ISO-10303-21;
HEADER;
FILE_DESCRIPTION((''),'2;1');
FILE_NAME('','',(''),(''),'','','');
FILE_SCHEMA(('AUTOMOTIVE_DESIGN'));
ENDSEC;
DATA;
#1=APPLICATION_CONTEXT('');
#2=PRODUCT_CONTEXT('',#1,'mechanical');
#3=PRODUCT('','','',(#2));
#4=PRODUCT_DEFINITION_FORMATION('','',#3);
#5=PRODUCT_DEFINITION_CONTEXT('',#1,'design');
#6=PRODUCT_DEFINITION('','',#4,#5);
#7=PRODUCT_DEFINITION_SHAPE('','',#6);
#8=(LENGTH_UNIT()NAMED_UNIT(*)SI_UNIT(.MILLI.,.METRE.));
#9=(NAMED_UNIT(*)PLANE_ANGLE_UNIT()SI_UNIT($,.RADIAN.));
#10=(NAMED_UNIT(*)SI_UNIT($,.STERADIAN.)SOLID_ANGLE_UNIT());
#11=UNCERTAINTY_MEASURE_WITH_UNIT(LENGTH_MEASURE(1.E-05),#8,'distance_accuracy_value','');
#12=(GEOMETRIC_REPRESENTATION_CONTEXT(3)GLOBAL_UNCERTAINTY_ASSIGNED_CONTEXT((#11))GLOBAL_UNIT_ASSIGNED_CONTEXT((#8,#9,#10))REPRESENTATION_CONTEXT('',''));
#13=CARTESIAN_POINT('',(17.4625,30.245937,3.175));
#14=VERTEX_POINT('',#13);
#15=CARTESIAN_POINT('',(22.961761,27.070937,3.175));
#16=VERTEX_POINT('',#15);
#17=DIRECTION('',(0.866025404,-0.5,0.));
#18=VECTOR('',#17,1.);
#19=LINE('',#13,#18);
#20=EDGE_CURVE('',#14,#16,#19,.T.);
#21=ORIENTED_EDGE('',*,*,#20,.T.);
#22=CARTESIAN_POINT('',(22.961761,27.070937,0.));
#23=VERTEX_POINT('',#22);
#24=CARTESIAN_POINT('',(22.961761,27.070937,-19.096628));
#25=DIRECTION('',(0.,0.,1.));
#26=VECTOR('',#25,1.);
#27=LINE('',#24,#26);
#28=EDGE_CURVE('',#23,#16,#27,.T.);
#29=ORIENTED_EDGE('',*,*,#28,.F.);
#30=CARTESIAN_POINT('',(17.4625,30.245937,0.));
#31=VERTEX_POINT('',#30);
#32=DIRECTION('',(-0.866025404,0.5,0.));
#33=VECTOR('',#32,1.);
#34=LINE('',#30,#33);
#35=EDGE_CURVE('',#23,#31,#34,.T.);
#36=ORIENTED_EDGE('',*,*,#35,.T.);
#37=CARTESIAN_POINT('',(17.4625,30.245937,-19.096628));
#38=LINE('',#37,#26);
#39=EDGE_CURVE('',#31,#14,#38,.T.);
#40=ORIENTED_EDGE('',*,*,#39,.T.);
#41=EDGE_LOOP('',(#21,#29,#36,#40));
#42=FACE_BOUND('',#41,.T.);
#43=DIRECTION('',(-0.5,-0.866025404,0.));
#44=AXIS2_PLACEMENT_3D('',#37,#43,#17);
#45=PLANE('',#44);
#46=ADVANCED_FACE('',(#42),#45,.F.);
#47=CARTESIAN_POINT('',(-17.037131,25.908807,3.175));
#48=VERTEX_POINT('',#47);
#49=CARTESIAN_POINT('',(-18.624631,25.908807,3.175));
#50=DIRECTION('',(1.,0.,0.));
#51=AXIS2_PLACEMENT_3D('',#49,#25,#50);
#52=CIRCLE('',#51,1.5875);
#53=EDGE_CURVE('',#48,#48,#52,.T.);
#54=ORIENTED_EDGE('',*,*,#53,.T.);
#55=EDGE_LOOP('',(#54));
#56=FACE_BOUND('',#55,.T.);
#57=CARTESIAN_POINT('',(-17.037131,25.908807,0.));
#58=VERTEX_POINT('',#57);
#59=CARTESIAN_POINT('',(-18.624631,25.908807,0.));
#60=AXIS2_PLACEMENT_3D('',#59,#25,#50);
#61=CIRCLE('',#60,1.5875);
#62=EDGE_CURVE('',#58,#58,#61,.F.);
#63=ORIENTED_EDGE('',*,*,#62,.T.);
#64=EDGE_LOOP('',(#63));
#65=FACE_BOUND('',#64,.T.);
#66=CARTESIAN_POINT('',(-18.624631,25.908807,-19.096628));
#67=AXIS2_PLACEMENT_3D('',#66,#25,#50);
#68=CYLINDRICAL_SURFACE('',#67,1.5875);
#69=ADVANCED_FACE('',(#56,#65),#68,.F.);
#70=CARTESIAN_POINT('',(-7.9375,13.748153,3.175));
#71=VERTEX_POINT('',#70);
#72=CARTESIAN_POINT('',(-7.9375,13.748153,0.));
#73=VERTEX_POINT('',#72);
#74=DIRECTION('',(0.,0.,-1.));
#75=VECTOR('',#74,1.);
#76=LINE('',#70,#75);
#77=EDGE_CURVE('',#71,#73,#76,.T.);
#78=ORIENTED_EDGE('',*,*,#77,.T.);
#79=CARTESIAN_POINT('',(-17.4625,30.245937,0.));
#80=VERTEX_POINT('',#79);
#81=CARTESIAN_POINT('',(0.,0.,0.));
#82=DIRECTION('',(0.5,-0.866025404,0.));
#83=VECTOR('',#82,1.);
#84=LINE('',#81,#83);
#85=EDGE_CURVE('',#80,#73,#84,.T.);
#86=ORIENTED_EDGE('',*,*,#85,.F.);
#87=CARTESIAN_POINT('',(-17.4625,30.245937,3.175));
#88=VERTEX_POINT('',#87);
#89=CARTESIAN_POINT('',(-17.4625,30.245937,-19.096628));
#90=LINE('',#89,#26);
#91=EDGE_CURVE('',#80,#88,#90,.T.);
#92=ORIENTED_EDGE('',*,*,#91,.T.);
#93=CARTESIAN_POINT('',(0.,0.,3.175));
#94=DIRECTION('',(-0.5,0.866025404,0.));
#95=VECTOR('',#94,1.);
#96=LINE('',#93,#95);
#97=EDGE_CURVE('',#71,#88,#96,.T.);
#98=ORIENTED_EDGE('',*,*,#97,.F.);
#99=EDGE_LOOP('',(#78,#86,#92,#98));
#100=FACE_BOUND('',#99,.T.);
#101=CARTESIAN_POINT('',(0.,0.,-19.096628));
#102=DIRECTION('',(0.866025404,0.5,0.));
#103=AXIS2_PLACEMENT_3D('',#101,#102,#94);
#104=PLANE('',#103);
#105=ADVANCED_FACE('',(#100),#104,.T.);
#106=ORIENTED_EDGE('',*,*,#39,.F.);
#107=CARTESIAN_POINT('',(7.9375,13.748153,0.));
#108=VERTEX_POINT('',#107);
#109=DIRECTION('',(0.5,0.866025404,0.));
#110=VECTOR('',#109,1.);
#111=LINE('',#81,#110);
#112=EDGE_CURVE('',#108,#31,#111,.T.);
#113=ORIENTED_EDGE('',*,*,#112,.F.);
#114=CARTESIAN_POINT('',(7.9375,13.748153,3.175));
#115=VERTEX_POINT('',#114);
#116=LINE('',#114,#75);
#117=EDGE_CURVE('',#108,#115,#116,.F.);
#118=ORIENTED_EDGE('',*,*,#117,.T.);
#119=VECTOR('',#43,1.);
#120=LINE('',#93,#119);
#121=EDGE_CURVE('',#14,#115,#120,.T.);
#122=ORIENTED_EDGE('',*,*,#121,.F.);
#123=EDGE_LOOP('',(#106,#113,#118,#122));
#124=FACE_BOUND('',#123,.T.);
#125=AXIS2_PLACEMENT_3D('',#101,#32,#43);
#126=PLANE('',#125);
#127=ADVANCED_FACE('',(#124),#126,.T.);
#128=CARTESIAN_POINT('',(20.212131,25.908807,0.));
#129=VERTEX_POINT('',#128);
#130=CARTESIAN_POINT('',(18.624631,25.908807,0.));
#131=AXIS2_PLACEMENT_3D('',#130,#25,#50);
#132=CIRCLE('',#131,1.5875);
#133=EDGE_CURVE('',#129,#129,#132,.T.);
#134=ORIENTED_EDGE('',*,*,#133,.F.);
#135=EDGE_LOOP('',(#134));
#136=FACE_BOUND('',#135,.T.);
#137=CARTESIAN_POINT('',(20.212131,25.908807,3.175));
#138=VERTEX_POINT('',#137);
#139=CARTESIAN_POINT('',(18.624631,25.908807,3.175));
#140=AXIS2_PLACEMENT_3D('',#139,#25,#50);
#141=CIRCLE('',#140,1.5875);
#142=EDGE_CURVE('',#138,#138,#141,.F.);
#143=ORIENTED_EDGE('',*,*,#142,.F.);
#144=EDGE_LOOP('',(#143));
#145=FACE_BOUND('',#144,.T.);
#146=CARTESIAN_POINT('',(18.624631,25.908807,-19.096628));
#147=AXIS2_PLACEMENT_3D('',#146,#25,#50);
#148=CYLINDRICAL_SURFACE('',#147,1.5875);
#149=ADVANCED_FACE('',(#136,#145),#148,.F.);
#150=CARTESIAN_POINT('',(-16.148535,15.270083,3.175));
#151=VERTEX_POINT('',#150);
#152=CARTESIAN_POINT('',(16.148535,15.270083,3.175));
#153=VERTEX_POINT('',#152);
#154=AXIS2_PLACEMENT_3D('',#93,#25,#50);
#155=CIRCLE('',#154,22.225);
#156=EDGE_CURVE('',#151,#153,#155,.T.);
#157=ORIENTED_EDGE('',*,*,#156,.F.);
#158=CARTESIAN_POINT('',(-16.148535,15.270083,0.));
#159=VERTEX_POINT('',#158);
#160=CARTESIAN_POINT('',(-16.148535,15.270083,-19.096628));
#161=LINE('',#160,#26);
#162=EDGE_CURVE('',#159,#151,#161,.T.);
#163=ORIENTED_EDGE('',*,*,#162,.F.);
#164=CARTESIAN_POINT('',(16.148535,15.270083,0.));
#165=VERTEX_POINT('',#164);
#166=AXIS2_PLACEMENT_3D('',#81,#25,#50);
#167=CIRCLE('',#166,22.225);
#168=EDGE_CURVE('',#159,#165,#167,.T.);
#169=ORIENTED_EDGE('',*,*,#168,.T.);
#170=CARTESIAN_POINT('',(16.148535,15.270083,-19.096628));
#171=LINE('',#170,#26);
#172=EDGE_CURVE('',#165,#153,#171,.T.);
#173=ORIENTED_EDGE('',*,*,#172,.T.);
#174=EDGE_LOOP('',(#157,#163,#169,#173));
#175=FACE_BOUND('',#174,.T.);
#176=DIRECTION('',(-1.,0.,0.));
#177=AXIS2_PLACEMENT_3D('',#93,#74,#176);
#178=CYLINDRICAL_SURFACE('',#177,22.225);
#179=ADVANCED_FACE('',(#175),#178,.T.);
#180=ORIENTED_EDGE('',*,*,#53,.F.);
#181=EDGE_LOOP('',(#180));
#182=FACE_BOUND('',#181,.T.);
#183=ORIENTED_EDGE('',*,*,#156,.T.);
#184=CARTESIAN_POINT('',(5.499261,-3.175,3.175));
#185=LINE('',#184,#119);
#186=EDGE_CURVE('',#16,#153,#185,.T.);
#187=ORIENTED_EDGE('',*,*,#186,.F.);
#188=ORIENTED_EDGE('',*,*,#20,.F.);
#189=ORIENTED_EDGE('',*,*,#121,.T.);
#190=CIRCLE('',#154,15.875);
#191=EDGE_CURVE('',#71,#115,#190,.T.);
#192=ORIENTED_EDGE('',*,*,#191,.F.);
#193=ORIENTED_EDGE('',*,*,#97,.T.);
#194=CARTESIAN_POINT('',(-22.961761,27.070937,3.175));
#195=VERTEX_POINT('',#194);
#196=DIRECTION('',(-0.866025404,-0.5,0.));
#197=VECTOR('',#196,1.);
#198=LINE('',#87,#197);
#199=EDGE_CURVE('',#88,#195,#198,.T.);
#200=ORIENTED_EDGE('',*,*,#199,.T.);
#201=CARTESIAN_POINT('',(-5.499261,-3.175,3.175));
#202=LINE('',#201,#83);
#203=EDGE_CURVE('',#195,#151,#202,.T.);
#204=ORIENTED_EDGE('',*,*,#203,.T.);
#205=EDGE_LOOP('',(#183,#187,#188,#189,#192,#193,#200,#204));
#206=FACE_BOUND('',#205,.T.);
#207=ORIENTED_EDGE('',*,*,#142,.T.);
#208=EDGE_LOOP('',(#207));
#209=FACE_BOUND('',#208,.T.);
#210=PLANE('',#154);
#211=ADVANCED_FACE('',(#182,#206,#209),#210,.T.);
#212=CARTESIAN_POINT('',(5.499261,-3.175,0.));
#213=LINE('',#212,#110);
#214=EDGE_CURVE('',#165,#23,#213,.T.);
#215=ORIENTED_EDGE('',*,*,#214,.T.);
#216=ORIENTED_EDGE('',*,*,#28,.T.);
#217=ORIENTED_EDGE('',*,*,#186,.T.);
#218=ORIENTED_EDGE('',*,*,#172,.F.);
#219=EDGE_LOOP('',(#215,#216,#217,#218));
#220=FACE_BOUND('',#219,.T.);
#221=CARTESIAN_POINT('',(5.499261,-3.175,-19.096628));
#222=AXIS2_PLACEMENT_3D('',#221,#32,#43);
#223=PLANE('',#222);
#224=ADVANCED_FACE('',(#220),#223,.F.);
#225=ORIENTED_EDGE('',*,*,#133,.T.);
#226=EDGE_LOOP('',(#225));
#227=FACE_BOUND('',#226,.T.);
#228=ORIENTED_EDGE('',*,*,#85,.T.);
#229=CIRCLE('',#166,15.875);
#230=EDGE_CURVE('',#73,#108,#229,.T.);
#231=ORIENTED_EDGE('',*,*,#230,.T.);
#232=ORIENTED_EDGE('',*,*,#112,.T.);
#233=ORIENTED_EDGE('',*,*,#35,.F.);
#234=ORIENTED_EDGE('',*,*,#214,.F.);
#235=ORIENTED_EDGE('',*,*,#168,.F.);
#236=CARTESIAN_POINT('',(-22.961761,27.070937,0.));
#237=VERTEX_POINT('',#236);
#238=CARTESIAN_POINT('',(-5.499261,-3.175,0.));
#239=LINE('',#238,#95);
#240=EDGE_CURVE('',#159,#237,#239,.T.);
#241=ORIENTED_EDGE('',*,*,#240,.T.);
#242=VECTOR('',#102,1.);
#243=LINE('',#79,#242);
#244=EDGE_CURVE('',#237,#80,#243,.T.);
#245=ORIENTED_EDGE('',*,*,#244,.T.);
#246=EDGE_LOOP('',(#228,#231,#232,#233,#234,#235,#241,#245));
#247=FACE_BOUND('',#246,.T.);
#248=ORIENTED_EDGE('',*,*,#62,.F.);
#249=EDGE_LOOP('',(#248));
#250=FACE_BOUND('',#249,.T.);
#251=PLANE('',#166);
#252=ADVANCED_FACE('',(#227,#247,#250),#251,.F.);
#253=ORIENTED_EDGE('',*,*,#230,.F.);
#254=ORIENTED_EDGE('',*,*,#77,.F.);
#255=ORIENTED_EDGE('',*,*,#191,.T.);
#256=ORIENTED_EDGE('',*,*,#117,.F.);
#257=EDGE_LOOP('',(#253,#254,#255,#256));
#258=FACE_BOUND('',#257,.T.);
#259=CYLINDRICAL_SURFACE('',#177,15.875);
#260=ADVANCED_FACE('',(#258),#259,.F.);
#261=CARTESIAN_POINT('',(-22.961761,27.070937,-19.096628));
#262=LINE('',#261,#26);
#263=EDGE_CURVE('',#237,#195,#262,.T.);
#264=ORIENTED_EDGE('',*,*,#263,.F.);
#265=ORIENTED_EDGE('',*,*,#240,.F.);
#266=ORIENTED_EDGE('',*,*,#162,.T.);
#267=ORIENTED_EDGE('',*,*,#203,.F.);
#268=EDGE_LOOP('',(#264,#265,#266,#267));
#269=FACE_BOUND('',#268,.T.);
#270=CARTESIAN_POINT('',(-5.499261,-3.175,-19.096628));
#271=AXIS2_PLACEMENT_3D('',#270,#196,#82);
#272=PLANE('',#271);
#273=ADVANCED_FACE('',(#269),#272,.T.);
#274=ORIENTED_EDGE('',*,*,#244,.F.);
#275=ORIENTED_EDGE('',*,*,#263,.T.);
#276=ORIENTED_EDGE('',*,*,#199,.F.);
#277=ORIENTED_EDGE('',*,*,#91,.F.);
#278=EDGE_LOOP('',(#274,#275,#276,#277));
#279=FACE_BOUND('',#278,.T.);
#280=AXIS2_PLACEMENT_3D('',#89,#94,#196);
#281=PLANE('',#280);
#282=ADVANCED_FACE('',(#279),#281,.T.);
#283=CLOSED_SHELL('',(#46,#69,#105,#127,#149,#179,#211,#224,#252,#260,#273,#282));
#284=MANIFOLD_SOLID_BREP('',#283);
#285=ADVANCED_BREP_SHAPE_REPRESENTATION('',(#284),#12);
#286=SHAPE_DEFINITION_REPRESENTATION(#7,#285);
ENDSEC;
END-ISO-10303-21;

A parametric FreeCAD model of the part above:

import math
import FreeCAD as App
import Part
import Sketcher
from FreeCAD import Vector
Q = App.Units.Quantity

doc = App.newDocument("Part")
body = doc.addObject("PartDesign::Body", "Body")

# Sketch on XY plane
sketch1 = doc.addObject("Sketcher::SketchObject", "Sketch")
body.addObject(sketch1)
sketch1.AttachmentSupport = (doc.XY_Plane, [""])
sketch1.MapMode = "FlatFace"
sketch1.addGeometry([
    Part.Circle(Vector(0, 0, 0), Vector(0, 0, 1), 22),
    Part.Circle(Vector(0, 0, 0), Vector(0, 0, 1), 16),
], False)
sketch1.addConstraint([
    Sketcher.Constraint("Coincident", 0, 3, -1, 1),
    Sketcher.Constraint("Coincident", 1, 3, -1, 1),
    Sketcher.Constraint("Diameter", 0, Q("1.75 in")),
    Sketcher.Constraint("Diameter", 1, Q("1.25 in")),
])
pad1 = doc.addObject("PartDesign::Pad", "Pad")
body.addObject(pad1)
pad1.Profile = sketch1
pad1.Length = Q("0.125 in")

# Sketch on XY plane
sketch2 = doc.addObject("Sketcher::SketchObject", "Sketch001")
body.addObject(sketch2)
sketch2.AttachmentSupport = (doc.XY_Plane, [""])
sketch2.MapMode = "FlatFace"
sketch2.AttachmentOffset = App.Placement(Vector(0, 0, 0.125 * 25.4), App.Rotation())
sketch2.addGeometry([
    Part.ArcOfCircle(Part.Circle(Vector(0, 0, 0), Vector(0, 0, 1), 22.2), math.radians(120), math.radians(136.6)),  # 0
    Part.LineSegment(Vector(-11.1, 19.2, 0), Vector(-17.5, 30.2, 0)),  # 1
    Part.LineSegment(Vector(-17.5, 30.2, 0), Vector(-23, 27.1, 0)),  # 2
    Part.LineSegment(Vector(-23, 27.1, 0), Vector(-16.6, 16.1, 0)),  # 3
    Part.LineSegment(Vector(-16.6, 16.1, 0), Vector(-16.1, 15.3, 0)),  # 4
    Part.Circle(Vector(-18.6, 25.9, 0), Vector(0, 0, 1), 1.6),  # 5
    Part.LineSegment(Vector(17.5, 30.2, 0), Vector(11.1, 19.2, 0)),  # 6
    Part.ArcOfCircle(Part.Circle(Vector(0, 0, 0), Vector(0, 0, 1), 22.2), math.radians(43.4), math.radians(60)),  # 7
    Part.LineSegment(Vector(16.1, 15.3, 0), Vector(16.6, 16.1, 0)),  # 8
    Part.LineSegment(Vector(16.6, 16.1, 0), Vector(23, 27.1, 0)),  # 9
    Part.LineSegment(Vector(23, 27.1, 0), Vector(17.5, 30.2, 0)),  # 10
    Part.Circle(Vector(18.6, 25.9, 0), Vector(0, 0, 1), 1.6),  # 11
], False)
sketch2.addConstraint([
    Sketcher.Constraint("Coincident", 0, 1, 1, 1),
    Sketcher.Constraint("Coincident", 1, 2, 2, 1),
    Sketcher.Constraint("Coincident", 2, 2, 3, 1),
    Sketcher.Constraint("Coincident", 3, 2, 4, 1),
    Sketcher.Constraint("Coincident", 4, 2, 0, 2),
    Sketcher.Constraint("Coincident", 6, 2, 7, 2),
    Sketcher.Constraint("Coincident", 7, 1, 8, 1),
    Sketcher.Constraint("Coincident", 8, 2, 9, 1),
    Sketcher.Constraint("Coincident", 9, 2, 10, 1),
    Sketcher.Constraint("Coincident", 10, 2, 6, 1),
    Sketcher.Constraint("Coincident", 0, 3, -1, 1),
    Sketcher.Constraint("Coincident", 7, 3, -1, 1),
    Sketcher.Constraint("Equal", 0, 7),
    Sketcher.Constraint("Equal", 5, 11),
    Sketcher.Constraint("Symmetric", 5, 3, 11, 3, -2),
    Sketcher.Constraint("Symmetric", 3, 2, 8, 2, -2),
    Sketcher.Constraint("Symmetric", 2, 2, 9, 2, -2),
    Sketcher.Constraint("Symmetric", 1, 2, 10, 2, -2),
    Sketcher.Constraint("Perpendicular", 1, 2),
    Sketcher.Constraint("Perpendicular", 2, 3),
    Sketcher.Constraint("Parallel", 3, 4),
    Sketcher.Constraint("Parallel", 6, 8),
    Sketcher.Constraint("Parallel", 8, 9),
    Sketcher.Constraint("Equal", 1, 3),
    Sketcher.Constraint("Diameter", 5, Q("0.125 in")),
    Sketcher.Constraint("Angle", 1, Q("120 deg")),
    Sketcher.Constraint("Radius", 0, Q("0.875 in")),
    Sketcher.Constraint("Distance", 1, Q("0.5 in")),
    Sketcher.Constraint("Distance", 2, Q("0.25 in")),
    Sketcher.Constraint("DistanceX", 0, 1, -1, 1, Q("0.4375 in")),
    Sketcher.Constraint("DistanceX", 5, 3, -1, 1, Q("18.624631 mm")),
    Sketcher.Constraint("DistanceY", 0, 1, 5, 3, Q("6.661392 mm")),
])
pad2 = doc.addObject("PartDesign::Pad", "Pad001")
body.addObject(pad2)
pad2.Profile = sketch2
pad2.Length = Q("0.125 in")
pad2.Reversed = True

# Sketch on XY plane
sketch3 = doc.addObject("Sketcher::SketchObject", "Sketch002")
body.addObject(sketch3)
sketch3.AttachmentSupport = (doc.XY_Plane, [""])
sketch3.MapMode = "FlatFace"
sketch3.AttachmentOffset = App.Placement(Vector(0, 0, 0.125 * 25.4), App.Rotation())
sketch3.addGeometry([
    Part.LineSegment(Vector(-11, 19, 0), Vector(0, 0, 0)),
    Part.LineSegment(Vector(0, 0, 0), Vector(11, 19, 0)),
    Part.ArcOfCircle(Part.Circle(Vector(0, 0, 0), Vector(0, 0, 1), 22), math.radians(60), math.radians(120)),
], False)
sketch3.addConstraint([
    Sketcher.Constraint("Coincident", 0, 2, 1, 1),
    Sketcher.Constraint("Coincident", 1, 2, 2, 1),
    Sketcher.Constraint("Coincident", 2, 2, 0, 1),
    Sketcher.Constraint("Coincident", 2, 3, -1, 1),
    Sketcher.Constraint("Coincident", 0, 2, -1, 1),
    Sketcher.Constraint("Horizontal", 1, 2, 2, 2),
    Sketcher.Constraint("Angle", 0, Q("-60 deg")),
    Sketcher.Constraint("Radius", 2, Q("0.875 in")),
])
pocket1 = doc.addObject("PartDesign::Pocket", "Pocket")
body.addObject(pocket1)
pocket1.Profile = sketch3
pocket1.Length = Q("0.125 in")

doc.recompute()
